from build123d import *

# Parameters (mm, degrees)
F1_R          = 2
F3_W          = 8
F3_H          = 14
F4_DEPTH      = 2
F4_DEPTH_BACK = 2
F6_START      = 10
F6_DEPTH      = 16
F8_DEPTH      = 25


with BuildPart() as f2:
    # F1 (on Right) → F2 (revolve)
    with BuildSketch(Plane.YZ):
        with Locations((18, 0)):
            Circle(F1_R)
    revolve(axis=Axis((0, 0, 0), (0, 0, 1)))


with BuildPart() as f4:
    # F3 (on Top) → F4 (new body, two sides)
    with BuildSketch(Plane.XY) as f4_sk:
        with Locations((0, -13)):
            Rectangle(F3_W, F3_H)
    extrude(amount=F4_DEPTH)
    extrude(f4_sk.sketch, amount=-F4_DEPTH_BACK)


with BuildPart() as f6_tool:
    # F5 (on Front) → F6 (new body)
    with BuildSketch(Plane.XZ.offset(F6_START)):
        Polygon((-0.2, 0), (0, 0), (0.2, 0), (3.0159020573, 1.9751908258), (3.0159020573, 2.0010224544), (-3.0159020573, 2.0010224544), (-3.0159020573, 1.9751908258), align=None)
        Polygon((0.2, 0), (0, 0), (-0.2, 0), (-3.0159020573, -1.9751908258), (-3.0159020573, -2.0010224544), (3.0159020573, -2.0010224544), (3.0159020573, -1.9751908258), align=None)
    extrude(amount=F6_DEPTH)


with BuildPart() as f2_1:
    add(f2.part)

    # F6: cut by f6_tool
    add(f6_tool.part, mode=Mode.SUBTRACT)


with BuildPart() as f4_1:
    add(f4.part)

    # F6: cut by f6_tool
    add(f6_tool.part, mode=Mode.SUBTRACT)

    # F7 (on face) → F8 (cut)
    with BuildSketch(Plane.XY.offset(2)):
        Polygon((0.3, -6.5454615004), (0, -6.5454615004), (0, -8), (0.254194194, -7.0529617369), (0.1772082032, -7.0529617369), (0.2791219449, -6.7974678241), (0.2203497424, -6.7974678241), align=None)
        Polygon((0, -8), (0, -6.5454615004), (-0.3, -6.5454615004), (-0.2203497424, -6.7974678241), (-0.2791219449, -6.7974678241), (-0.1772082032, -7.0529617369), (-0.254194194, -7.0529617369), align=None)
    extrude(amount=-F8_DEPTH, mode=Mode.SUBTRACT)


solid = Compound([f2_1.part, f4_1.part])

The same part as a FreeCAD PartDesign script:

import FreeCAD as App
import Part
import Sketcher

V = App.Vector

doc = App.newDocument("Part")
body = doc.addObject("PartDesign::Body", "Body")

# Sketch on YZ plane
sketch1 = doc.addObject("Sketcher::SketchObject", "Sketch")
body.addObject(sketch1)
sketch1.AttachmentSupport = (doc.YZ_Plane, [""])
sketch1.MapMode = "FlatFace"
sketch1.addGeometry(Part.Circle(V(18, 0, 0), V(0, 0, 1), 2), False)
sketch1.addConstraint([
    Sketcher.Constraint("PointOnObject", 0, 3, -1),
    Sketcher.Constraint("Diameter", 0, 4.0),
    Sketcher.Constraint("DistanceX", -1, 1, 0, 3, 18.0),
])
revolution = doc.addObject("PartDesign::Revolution", "Revolution")
body.addObject(revolution)
revolution.Profile = sketch1
revolution.ReferenceAxis = (sketch1, ["V_Axis"])
revolution.Angle = 360
body2 = doc.addObject("PartDesign::Body", "Body001")

# Sketch on XY plane
sketch2 = doc.addObject("Sketcher::SketchObject", "Sketch001")
body2.addObject(sketch2)
sketch2.AttachmentSupport = (doc.getObject("XY_Plane001"), [""])
sketch2.MapMode = "FlatFace"
sketch2.addGeometry([
    Part.LineSegment(V(-4, -6, 0), V(-4, -20, 0)),
    Part.LineSegment(V(-4, -20, 0), V(4, -20, 0)),
    Part.LineSegment(V(4, -20, 0), V(4, -6, 0)),
    Part.LineSegment(V(4, -6, 0), V(-4, -6, 0)),
], False)
sketch2.addConstraint([
    Sketcher.Constraint("Coincident", 0, 2, 1, 1),
    Sketcher.Constraint("Coincident", 1, 2, 2, 1),
    Sketcher.Constraint("Coincident", 2, 2, 3, 1),
    Sketcher.Constraint("Coincident", 3, 2, 0, 1),
    Sketcher.Constraint("Vertical", 0),
    Sketcher.Constraint("Horizontal", 1),
    Sketcher.Constraint("Vertical", 2),
    Sketcher.Constraint("Horizontal", 3),
    Sketcher.Constraint("DistanceX", 1, 1, 1, 2, 8.0),
    Sketcher.Constraint("DistanceY", 0, 2, 0, 1, 14.0),
    Sketcher.Constraint("DistanceX", 0, 2, -1, 1, 4.0),
    Sketcher.Constraint("DistanceY", 0, 2, -1, 1, 20.0),
])
pad1 = doc.addObject("PartDesign::Pad", "Pad")
body2.addObject(pad1)
pad1.Profile = sketch2
pad1.Type = "TwoLengths"
pad1.Length = 2
pad1.Length2 = 2
body3 = doc.addObject("PartDesign::Body", "Body002")

# Sketch on XZ plane
sketch3 = doc.addObject("Sketcher::SketchObject", "Sketch002")
body3.addObject(sketch3)
sketch3.AttachmentSupport = (doc.getObject("XZ_Plane002"), [""])
sketch3.MapMode = "FlatFace"
sketch3.AttachmentOffset = App.Placement(V(0, 0, 10), App.Rotation())
sketch3.addGeometry([
    Part.LineSegment(V(0.2, 0, 0), V(3.016, 1.975, 0)),  # 0
    Part.LineSegment(V(3.016, 1.975, 0), V(3.016, 2.001, 0)),  # 1
    Part.LineSegment(V(3.016, 2.001, 0), V(-3.016, 2.001, 0)),  # 2
    Part.LineSegment(V(-3.016, 2.001, 0), V(-3.016, 1.975, 0)),  # 3
    Part.LineSegment(V(-3.016, 1.975, 0), V(-0.2, 0, 0)),  # 4
    Part.LineSegment(V(-0.2, 0, 0), V(-3.016, -1.975, 0)),  # 5
    Part.LineSegment(V(-3.016, -1.975, 0), V(-3.016, -2.001, 0)),  # 6
    Part.LineSegment(V(-3.016, -2.001, 0), V(3.016, -2.001, 0)),  # 7
    Part.LineSegment(V(3.016, -2.001, 0), V(3.016, -1.975, 0)),  # 8
    Part.LineSegment(V(3.016, -1.975, 0), V(0.2, 0, 0)),  # 9
], False)
sketch3.addConstraint([
    Sketcher.Constraint("Coincident", 0, 2, 1, 1),
    Sketcher.Constraint("Coincident", 1, 2, 2, 1),
    Sketcher.Constraint("Coincident", 2, 2, 3, 1),
    Sketcher.Constraint("Coincident", 3, 2, 4, 1),
    Sketcher.Constraint("Coincident", 4, 2, 5, 1),
    Sketcher.Constraint("Coincident", 5, 2, 6, 1),
    Sketcher.Constraint("Coincident", 6, 2, 7, 1),
    Sketcher.Constraint("Coincident", 7, 2, 8, 1),
    Sketcher.Constraint("Coincident", 8, 2, 9, 1),
    Sketcher.Constraint("Coincident", 9, 2, 0, 1),
    Sketcher.Constraint("Vertical", 1),
    Sketcher.Constraint("Horizontal", 2),
    Sketcher.Constraint("Vertical", 3),
    Sketcher.Constraint("Vertical", 6),
    Sketcher.Constraint("Horizontal", 7),
    Sketcher.Constraint("Vertical", 8),
    Sketcher.Constraint("Symmetric", 0, 2, 5, 2, -1, 1),
    Sketcher.Constraint("Symmetric", 2, 2, 7, 2, -1, 1),
    Sketcher.Constraint("Symmetric", 4, 2, 9, 2, -1, 1),
    Sketcher.Constraint("Symmetric", 0, 2, 3, 2, -2),
    Sketcher.Constraint("PointOnObject", 4, 2, -1),
    Sketcher.Constraint("Parallel", 4, 9),
    Sketcher.Constraint("DistanceX", 4, 2, -1, 1, 0.2),
    Sketcher.Constraint("DistanceY", 1, 1, 1, 2, 0.025832),
    Sketcher.Constraint("DistanceX", 2, 2, 2, 1, 6.031804),
    Sketcher.Constraint("DistanceY", -1, 1, 0, 2, 1.975191),
])
pad2 = doc.addObject("PartDesign::Pad", "Pad001")
body3.addObject(pad2)
pad2.Profile = sketch3
pad2.Length = 16
doc.recompute()

body4 = doc.addObject("PartDesign::Body", "Body003")
body4.BaseFeature = body3
boolean = doc.addObject("PartDesign::Boolean", "Boolean")
body.addObject(boolean)
boolean.Type = "Cut"
boolean.addObjects([body4])
doc.recompute()

boolean2 = doc.addObject("PartDesign::Boolean", "Boolean001")
body2.addObject(boolean2)
boolean2.Type = "Cut"
boolean2.addObjects([body3])

# Sketch on XY plane
sketch4 = doc.addObject("Sketcher::SketchObject", "Sketch003")
body2.addObject(sketch4)
sketch4.AttachmentSupport = (doc.getObject("XY_Plane001"), [""])
sketch4.MapMode = "FlatFace"
sketch4.AttachmentOffset = App.Placement(V(0, 0, 2), App.Rotation())
sketch4.addGeometry([
    Part.LineSegment(V(0.3, -6.55, 0), V(-0.3, -6.55, 0)),  # 0
    Part.LineSegment(V(-0.3, -6.55, 0), V(-0.22, -6.8, 0)),  # 1
    Part.LineSegment(V(-0.22, -6.8, 0), V(-0.28, -6.8, 0)),  # 2
    Part.LineSegment(V(-0.28, -6.8, 0), V(-0.18, -7.05, 0)),  # 3
    Part.LineSegment(V(-0.18, -7.05, 0), V(-0.25, -7.05, 0)),  # 4
    Part.LineSegment(V(-0.25, -7.05, 0), V(0, -8, 0)),  # 5
    Part.LineSegment(V(0, -8, 0), V(0.25, -7.05, 0)),  # 6
    Part.LineSegment(V(0.25, -7.05, 0), V(0.18, -7.05, 0)),  # 7
    Part.LineSegment(V(0.18, -7.05, 0), V(0.28, -6.8, 0)),  # 8
    Part.LineSegment(V(0.28, -6.8, 0), V(0.22, -6.8, 0)),  # 9
    Part.LineSegment(V(0.22, -6.8, 0), V(0.3, -6.55, 0)),  # 10
], False)
sketch4.addConstraint([
    Sketcher.Constraint("Coincident", 0, 2, 1, 1),
    Sketcher.Constraint("Coincident", 1, 2, 2, 1),
    Sketcher.Constraint("Coincident", 2, 2, 3, 1),
    Sketcher.Constraint("Coincident", 3, 2, 4, 1),
    Sketcher.Constraint("Coincident", 4, 2, 5, 1),
    Sketcher.Constraint("Coincident", 5, 2, 6, 1),
    Sketcher.Constraint("Coincident", 6, 2, 7, 1),
    Sketcher.Constraint("Coincident", 7, 2, 8, 1),
    Sketcher.Constraint("Coincident", 8, 2, 9, 1),
    Sketcher.Constraint("Coincident", 9, 2, 10, 1),
    Sketcher.Constraint("Coincident", 10, 2, 0, 1),
    Sketcher.Constraint("Horizontal", 0),
    Sketcher.Constraint("Horizontal", 2),
    Sketcher.Constraint("Horizontal", 4),
    Sketcher.Constraint("Horizontal", 7),
    Sketcher.Constraint("Horizontal", 9),
    Sketcher.Constraint("Symmetric", 4, 2, 6, 2, -2),
    Sketcher.Constraint("Symmetric", 2, 2, 8, 2, -2),
    Sketcher.Constraint("PointOnObject", 5, 2, -2),
    Sketcher.Constraint("Equal", 4, 7),
    Sketcher.Constraint("Equal", 2, 9),
    Sketcher.Constraint("Equal", 1, 10),
    Sketcher.Constraint("DistanceX", 0, 2, 0, 1, 0.6),
    Sketcher.Constraint("DistanceY", 5, 2, -1, 1, 8.0),
    Sketcher.Constraint("DistanceY", 3, 2, 0, 2, 0.5075),
    Sketcher.Constraint("DistanceX", 1, 2, 9, 2, 0.440699),
    Sketcher.Constraint("Distance", 3, 0.27507),
    Sketcher.Constraint("Distance", 5, 0.980559),
    Sketcher.Constraint("DistanceX", 2, 2, 2, 1, 0.058772),
    Sketcher.Constraint("DistanceX", 4, 2, 4, 1, 0.076986),
    Sketcher.Constraint("DistanceY", 0, 2, -1, 1, 6.545462),
])
pocket1 = doc.addObject("PartDesign::Pocket", "Pocket")
body2.addObject(pocket1)
pocket1.Profile = sketch4
pocket1.Length = 25

doc.recompute()
